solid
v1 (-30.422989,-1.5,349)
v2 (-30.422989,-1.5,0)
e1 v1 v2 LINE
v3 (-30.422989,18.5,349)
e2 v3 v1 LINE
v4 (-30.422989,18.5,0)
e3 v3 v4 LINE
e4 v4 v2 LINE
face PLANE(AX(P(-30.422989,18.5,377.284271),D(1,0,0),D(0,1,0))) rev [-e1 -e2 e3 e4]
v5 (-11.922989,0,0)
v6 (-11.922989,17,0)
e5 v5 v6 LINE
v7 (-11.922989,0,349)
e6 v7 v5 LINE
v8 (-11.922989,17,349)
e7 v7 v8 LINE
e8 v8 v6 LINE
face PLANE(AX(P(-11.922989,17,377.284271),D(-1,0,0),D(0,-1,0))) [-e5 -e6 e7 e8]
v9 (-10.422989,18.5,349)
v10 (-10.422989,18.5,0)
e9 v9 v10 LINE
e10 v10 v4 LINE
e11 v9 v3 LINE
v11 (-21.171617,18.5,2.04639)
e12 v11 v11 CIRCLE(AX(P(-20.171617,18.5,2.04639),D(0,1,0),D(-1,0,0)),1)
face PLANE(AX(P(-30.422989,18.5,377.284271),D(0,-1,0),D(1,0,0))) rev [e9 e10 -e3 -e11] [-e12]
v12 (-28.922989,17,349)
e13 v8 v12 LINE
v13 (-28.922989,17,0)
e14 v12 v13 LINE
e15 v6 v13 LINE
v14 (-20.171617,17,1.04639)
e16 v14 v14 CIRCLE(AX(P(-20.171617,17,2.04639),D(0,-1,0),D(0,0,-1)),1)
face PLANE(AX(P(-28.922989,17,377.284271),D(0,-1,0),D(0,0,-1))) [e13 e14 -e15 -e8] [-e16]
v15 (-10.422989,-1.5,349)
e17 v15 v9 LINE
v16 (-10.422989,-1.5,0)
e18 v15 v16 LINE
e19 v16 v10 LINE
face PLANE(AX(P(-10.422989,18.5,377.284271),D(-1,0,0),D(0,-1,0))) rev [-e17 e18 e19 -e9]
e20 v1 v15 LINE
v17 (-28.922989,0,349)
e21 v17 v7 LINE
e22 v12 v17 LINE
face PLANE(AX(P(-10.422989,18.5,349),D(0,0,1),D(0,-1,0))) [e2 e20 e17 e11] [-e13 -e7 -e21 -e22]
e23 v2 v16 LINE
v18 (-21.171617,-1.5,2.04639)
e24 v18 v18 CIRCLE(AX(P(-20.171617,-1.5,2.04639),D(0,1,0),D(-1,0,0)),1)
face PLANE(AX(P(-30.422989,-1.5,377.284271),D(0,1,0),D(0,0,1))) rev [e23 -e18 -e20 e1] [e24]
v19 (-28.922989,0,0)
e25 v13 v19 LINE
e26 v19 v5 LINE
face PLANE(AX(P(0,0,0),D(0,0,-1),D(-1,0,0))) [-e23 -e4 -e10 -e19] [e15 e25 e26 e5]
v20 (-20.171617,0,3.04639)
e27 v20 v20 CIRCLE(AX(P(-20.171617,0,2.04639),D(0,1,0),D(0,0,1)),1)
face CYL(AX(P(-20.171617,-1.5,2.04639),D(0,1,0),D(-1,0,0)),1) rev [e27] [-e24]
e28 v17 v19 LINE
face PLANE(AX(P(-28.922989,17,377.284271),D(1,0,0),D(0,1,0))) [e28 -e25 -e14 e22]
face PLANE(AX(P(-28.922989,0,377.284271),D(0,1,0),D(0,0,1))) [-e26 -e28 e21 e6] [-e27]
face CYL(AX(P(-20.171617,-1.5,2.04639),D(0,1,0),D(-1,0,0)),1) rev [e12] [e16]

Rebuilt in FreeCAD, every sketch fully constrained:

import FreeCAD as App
import Part
import Sketcher


def add_polygon(sketch, points):
    """Adds a closed chain of lines whose ends are joined by coincident constraints."""
    first, n = sketch.GeometryCount, len(points)
    for a, b in zip(points, points[1:] + points[:1]):
        sketch.addGeometry(Part.LineSegment(App.Vector(*a, 0), App.Vector(*b, 0)), False)
    for i in range(n):
        sketch.addConstraint(Sketcher.Constraint("Coincident", first + i, 2, first + (i + 1) % n, 1))

doc = App.newDocument("Part")
body = doc.addObject("PartDesign::Body", "Body")

sketch1 = body.newObject("Sketcher::SketchObject", "Sketch")
sketch1.AttachmentSupport = (doc.getObject("XY_Plane"), [""])
sketch1.MapMode = "FlatFace"
add_polygon(sketch1, [(-30, 18), (-30, -2), (-10, -2), (-10, 18)])
add_polygon(sketch1, [(-12, 0), (-29, 0), (-29, 17), (-12, 17)])
sketch1.addConstraint(Sketcher.Constraint("Vertical", 0))
sketch1.addConstraint(Sketcher.Constraint("Horizontal", 1))
sketch1.addConstraint(Sketcher.Constraint("Vertical", 2))
sketch1.addConstraint(Sketcher.Constraint("Horizontal", 3))
sketch1.addConstraint(Sketcher.Constraint("Horizontal", 4))
sketch1.addConstraint(Sketcher.Constraint("Vertical", 5))
sketch1.addConstraint(Sketcher.Constraint("Horizontal", 6))
sketch1.addConstraint(Sketcher.Constraint("Vertical", 7))
sketch1.addConstraint(Sketcher.Constraint("PointOnObject", 4, 2, -1))
sketch1.addConstraint(Sketcher.Constraint("Equal", 3, 0))
sketch1.addConstraint(Sketcher.Constraint("Equal", 6, 5))
sketch1.addConstraint(Sketcher.Constraint("DistanceX", 1, 1, 1, 2, 20.0))
sketch1.addConstraint(Sketcher.Constraint("DistanceX", 4, 2, 4, 1, 17.0))
sketch1.addConstraint(Sketcher.Constraint("DistanceY", 0, 2, -1, 1, 1.5))
sketch1.addConstraint(Sketcher.Constraint("DistanceX", 0, 2, 4, 2, 1.5))
sketch1.addConstraint(Sketcher.Constraint("DistanceX", 0, 2, -1, 1, 30.422989))
pad1 = body.newObject("PartDesign::Pad", "Pad")
pad1.Profile = sketch1
pad1.Length = 349

sketch2 = body.newObject("Sketcher::SketchObject", "Sketch001")
sketch2.AttachmentSupport = (doc.getObject("XZ_Plane"), [""])
sketch2.MapMode = "FlatFace"
sketch2.AttachmentOffset = App.Placement(App.Vector(0, 0, -18.5), App.Rotation())
sketch2.addGeometry(Part.Circle(App.Vector(-20.2, 2, 0), App.Vector(0, 0, 1), 1), False)
sketch2.addConstraint(Sketcher.Constraint("Diameter", 0, 2.0))
sketch2.addConstraint(Sketcher.Constraint("DistanceY", -1, 1, 0, 3, 2.04639))
sketch2.addConstraint(Sketcher.Constraint("DistanceX", 0, 3, -1, 1, 20.171617))
pocket1 = body.newObject("PartDesign::Pocket", "Pocket")
pocket1.Profile = sketch2
pocket1.Type = "ThroughAll"
pocket1.Reversed = True

doc.recompute()
